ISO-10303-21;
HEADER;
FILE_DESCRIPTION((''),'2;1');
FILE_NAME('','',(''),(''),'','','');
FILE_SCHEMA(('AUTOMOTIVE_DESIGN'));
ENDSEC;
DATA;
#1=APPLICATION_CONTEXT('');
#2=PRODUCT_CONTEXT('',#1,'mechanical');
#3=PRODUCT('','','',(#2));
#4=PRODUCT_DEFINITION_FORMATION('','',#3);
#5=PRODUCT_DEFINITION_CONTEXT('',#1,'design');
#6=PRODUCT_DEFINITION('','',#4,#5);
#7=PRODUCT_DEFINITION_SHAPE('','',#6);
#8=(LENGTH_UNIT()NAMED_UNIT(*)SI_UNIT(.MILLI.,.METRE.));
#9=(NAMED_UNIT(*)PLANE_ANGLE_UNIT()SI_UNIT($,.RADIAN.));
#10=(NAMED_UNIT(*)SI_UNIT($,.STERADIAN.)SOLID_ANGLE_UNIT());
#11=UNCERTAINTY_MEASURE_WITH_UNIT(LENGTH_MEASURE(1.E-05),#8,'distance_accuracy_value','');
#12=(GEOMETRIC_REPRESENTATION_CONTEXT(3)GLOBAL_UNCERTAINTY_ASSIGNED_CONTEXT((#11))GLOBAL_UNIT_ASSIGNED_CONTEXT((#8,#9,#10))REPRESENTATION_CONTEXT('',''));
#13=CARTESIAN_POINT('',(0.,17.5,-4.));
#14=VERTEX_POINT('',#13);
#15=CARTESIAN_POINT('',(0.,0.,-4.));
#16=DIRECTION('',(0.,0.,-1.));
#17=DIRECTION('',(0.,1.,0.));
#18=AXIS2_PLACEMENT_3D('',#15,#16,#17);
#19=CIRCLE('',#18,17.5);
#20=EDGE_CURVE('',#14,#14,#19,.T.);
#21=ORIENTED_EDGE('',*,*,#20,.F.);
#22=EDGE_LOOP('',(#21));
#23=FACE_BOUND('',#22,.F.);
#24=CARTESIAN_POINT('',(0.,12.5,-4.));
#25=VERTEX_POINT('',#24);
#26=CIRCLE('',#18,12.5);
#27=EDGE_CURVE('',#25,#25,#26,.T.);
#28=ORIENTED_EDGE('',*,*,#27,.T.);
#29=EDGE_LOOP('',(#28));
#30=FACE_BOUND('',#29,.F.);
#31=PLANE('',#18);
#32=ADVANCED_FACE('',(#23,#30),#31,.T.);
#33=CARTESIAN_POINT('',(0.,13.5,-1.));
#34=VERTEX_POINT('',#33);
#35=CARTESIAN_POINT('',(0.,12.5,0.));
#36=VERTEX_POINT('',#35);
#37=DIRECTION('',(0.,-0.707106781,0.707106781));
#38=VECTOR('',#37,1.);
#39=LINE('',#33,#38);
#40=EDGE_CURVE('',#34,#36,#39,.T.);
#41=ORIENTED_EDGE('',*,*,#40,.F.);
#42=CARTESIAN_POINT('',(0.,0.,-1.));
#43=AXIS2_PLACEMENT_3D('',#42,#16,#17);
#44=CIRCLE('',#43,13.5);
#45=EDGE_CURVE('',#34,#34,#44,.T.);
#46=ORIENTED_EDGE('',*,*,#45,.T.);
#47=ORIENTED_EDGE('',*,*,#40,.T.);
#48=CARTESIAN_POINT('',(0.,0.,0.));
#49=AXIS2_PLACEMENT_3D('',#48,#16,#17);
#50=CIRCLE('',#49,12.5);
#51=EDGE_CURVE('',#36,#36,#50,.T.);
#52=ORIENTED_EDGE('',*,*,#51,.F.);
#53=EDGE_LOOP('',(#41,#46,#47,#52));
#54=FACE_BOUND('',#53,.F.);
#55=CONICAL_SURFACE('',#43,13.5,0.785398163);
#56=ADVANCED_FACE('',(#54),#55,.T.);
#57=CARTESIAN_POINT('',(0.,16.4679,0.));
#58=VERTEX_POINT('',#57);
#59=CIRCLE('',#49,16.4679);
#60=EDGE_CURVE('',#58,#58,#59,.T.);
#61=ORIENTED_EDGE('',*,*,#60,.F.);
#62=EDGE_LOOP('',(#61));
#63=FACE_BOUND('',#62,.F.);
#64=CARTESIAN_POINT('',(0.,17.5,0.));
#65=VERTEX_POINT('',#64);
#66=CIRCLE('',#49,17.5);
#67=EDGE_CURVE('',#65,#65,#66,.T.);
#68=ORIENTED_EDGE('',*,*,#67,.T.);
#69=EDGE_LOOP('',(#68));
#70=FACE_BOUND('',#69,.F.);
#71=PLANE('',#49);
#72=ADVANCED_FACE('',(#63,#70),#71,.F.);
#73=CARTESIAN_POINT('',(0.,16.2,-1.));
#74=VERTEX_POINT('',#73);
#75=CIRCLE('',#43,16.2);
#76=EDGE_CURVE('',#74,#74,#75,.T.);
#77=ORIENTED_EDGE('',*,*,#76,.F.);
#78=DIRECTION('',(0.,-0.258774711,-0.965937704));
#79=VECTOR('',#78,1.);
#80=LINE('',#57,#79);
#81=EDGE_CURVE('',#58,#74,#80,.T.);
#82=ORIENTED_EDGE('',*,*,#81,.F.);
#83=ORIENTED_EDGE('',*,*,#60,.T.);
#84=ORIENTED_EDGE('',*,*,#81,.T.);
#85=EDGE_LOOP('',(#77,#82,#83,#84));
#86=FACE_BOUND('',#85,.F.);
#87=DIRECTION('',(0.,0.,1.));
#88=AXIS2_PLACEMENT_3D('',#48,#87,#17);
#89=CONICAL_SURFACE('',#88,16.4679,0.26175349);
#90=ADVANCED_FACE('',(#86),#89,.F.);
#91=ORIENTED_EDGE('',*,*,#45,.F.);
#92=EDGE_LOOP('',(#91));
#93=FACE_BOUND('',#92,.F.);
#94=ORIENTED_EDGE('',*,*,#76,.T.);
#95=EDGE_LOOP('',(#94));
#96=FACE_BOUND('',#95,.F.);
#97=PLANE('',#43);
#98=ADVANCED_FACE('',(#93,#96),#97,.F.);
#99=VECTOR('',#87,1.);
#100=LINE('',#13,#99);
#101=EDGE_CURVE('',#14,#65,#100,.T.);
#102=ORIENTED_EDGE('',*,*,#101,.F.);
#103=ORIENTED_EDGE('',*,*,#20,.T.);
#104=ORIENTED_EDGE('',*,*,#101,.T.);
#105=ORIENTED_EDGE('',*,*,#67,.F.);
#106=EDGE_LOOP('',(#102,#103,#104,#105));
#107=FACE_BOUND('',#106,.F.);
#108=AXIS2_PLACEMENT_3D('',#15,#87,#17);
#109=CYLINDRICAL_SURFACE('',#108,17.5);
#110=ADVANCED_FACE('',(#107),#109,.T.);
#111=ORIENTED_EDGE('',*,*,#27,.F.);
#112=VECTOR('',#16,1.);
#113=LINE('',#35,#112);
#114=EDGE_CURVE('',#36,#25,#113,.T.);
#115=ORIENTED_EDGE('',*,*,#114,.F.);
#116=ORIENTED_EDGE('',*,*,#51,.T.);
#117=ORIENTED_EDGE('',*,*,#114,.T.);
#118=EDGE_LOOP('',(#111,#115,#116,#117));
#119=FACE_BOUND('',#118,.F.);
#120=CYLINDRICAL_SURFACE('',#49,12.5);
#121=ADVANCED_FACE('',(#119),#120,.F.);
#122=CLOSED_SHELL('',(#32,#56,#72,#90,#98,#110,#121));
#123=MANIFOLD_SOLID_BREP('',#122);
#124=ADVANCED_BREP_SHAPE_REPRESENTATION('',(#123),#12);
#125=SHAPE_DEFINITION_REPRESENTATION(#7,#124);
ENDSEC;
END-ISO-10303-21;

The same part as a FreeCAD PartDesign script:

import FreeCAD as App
import Part
import Sketcher
from FreeCAD import Vector
Q = App.Units.Quantity


def add_polygon(sketch, points):
    """Adds a closed chain of lines whose ends are joined by coincident constraints."""
    first, n = sketch.GeometryCount, len(points)
    for a, b in zip(points, points[1:] + points[:1]):
        sketch.addGeometry(Part.LineSegment(App.Vector(*a, 0), App.Vector(*b, 0)), False)
    for i in range(n):
        sketch.addConstraint(Sketcher.Constraint("Coincident", first + i, 2, first + (i + 1) % n, 1))

doc = App.newDocument("Part")
body = doc.addObject("PartDesign::Body", "Body")

# Sketch on YZ plane
sketch1 = body.newObject("Sketcher::SketchObject", "Sketch")
sketch1.AttachmentSupport = (doc.getObject("YZ_Plane"), [""])
sketch1.MapMode = "FlatFace"
add_polygon(sketch1, [(13.5, -1), (12.5, 0), (12.5, -4), (17.5, -4), (17.5, 0), (16.5, 0), (16.2, -1)])  # lines 0-6
sketch1.addConstraint([
    Sketcher.Constraint("Vertical", 1),
    Sketcher.Constraint("Horizontal", 2),
    Sketcher.Constraint("Vertical", 3),
    Sketcher.Constraint("Horizontal", 4),
    Sketcher.Constraint("Horizontal", 6),
    Sketcher.Constraint("PointOnObject", 0, 2, -1),
    Sketcher.Constraint("PointOnObject", 3, 2, -1),
    Sketcher.Constraint("DistanceX", 2, 1, 2, 2, Q("5 mm")),
    Sketcher.Constraint("DistanceY", 1, 2, 1, 1, Q("4 mm")),
    Sketcher.Constraint("Angle", 0, Q("135 deg")),
    Sketcher.Constraint("DistanceX", 6, 2, 6, 1, Q("2.7 mm")),
    Sketcher.Constraint("DistanceY", 5, 2, -1, 1, Q("1 mm")),
    Sketcher.Constraint("DistanceX", -1, 1, 0, 2, Q("12.5 mm")),
    Sketcher.Constraint("DistanceX", 4, 2, 4, 1, Q("1.032 mm")),
])
revolution = body.newObject("PartDesign::Revolution", "Revolution")
revolution.Profile = sketch1
revolution.ReferenceAxis = (sketch1, ["V_Axis"])
revolution.Angle = 360

doc.recompute()
